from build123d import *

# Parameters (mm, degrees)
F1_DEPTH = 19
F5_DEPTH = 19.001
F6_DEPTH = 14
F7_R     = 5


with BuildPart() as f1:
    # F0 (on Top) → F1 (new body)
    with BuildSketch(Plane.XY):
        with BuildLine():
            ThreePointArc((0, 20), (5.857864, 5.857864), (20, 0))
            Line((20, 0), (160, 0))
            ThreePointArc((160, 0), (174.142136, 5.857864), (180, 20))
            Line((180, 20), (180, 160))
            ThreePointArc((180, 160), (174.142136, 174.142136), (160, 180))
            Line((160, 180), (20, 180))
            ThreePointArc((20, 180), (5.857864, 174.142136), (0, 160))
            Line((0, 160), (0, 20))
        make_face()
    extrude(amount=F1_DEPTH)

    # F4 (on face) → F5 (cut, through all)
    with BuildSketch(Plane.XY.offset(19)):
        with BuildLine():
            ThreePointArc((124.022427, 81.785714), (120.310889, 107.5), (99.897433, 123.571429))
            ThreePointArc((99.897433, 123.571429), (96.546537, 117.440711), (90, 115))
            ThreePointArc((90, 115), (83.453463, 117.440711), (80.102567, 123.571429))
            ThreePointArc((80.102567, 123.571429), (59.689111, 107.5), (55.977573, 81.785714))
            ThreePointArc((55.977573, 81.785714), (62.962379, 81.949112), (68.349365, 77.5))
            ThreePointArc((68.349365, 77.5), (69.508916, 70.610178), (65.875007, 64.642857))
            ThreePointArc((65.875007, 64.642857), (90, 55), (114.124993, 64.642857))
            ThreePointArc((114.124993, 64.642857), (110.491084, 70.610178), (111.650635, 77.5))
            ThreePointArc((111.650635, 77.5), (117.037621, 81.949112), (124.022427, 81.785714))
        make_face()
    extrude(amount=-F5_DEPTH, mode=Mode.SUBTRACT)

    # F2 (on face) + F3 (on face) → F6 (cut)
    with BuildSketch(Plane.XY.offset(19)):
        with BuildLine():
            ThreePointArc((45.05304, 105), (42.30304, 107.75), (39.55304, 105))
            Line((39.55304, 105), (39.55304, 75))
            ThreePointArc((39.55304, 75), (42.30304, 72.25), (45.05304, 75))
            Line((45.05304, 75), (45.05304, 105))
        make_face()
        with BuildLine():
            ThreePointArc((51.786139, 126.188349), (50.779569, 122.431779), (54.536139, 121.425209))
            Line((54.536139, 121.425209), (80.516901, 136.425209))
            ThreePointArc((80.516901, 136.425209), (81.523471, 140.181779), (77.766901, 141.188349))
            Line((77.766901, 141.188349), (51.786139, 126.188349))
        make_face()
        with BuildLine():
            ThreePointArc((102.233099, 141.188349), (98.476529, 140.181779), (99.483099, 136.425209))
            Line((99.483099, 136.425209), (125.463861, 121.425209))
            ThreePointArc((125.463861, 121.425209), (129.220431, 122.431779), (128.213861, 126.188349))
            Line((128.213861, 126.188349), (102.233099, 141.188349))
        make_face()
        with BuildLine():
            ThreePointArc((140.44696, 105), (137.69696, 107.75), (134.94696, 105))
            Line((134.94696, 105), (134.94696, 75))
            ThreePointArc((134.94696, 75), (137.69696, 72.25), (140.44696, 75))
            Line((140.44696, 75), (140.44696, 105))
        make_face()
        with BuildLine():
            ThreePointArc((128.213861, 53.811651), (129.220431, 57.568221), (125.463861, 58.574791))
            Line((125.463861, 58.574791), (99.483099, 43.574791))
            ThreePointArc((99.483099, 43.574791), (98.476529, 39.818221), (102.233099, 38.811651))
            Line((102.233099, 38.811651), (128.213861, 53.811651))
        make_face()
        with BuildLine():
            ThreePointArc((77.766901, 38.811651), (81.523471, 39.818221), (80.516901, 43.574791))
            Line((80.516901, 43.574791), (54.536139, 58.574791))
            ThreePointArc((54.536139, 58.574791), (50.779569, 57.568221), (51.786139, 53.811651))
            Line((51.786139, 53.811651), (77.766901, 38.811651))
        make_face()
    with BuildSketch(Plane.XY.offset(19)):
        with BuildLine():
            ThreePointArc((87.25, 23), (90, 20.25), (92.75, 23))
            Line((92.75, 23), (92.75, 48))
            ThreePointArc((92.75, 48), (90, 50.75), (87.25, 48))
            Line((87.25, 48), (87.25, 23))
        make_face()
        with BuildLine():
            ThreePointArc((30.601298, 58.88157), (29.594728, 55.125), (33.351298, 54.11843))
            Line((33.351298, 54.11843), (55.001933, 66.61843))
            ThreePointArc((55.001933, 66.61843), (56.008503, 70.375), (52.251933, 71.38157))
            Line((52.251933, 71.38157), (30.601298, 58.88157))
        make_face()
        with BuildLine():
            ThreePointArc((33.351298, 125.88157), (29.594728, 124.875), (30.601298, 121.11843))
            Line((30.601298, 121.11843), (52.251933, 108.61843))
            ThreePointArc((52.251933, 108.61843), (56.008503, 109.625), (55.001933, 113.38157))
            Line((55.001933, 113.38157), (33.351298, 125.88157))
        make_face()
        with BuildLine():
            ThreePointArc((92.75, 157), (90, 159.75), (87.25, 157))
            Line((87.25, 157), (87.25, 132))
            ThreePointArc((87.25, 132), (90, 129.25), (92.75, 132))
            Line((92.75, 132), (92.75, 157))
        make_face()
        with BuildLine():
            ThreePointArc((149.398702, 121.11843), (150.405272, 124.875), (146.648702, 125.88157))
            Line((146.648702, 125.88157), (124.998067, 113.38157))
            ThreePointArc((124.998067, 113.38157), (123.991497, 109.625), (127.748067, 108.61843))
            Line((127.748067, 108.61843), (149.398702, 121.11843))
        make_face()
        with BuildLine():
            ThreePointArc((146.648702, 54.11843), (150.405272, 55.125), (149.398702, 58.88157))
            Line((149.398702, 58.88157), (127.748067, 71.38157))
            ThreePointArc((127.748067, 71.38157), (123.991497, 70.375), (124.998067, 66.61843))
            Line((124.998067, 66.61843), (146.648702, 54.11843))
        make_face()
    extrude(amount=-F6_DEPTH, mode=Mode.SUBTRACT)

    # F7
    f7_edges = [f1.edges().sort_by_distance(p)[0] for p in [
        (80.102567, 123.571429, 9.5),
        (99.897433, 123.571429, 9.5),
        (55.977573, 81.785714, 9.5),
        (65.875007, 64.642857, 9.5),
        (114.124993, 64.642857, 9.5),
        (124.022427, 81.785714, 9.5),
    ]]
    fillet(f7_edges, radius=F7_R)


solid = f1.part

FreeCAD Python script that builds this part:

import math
import FreeCAD as App
import Part
import Sketcher
Q = App.Units.Quantity


def edges_at(feature, points):
    """Names of the edges that pass closest to the given points."""
    edges = feature.Shape.Edges
    near = lambda p: min(range(len(edges)), key=lambda i: edges[i].distToShape(Part.Vertex(*p))[0])
    return sorted({f"Edge{near(p) + 1}" for p in points})

doc = App.newDocument("Part")
params = doc.addObject("Spreadsheet::Sheet", "Params")
for row, (alias, value) in enumerate([
    ("sketch1_radius", "19.999999 mm"),
    ("sketch1_width", "140 mm"),
    ("pad1_length", "19 mm"),
    ("sketch2_radius", "35.000002 mm"),
    ("sketch2_radius2", "10 mm"),
    ("sketch2_radius3", "34.999999 mm"),
    ("sketch2_height", "5 mm"),
    ("sketch3_height", "30 mm"),
    ("sketch3_height2", "25 mm"),
    ("sketch3_radius", "2.75 mm"),
    ("sketch3_length", "30 mm"),
    ("sketch3_length2", "25 mm"),
    ("pocket2_length", "14 mm"),
    ("fillet_radius", "5 mm"),
], start=1):
    params.set(f"A{row}", alias)
    params.set(f"B{row}", "=" + value)
    params.setAlias(f"B{row}", alias)

body = doc.addObject("PartDesign::Body", "Body")

sketch1 = doc.addObject("Sketcher::SketchObject", "Sketch")
body.addObject(sketch1)
sketch1.AttachmentSupport = (doc.XY_Plane, [""])
sketch1.MapMode = "FlatFace"
sketch1.addGeometry(Part.ArcOfCircle(Part.Circle(App.Vector(20, 20, 0), App.Vector(0, 0, 1), 20), math.radians(180), math.radians(270)), False)
sketch1.addGeometry(Part.LineSegment(App.Vector(20, 0, 0), App.Vector(160, 0, 0)), False)
sketch1.addGeometry(Part.ArcOfCircle(Part.Circle(App.Vector(160, 20, 0), App.Vector(0, 0, 1), 20), math.radians(-90), math.radians(0)), False)
sketch1.addGeometry(Part.LineSegment(App.Vector(180, 20, 0), App.Vector(180, 160, 0)), False)
sketch1.addGeometry(Part.ArcOfCircle(Part.Circle(App.Vector(160, 160, 0), App.Vector(0, 0, 1), 20), math.radians(0), math.radians(90)), False)
sketch1.addGeometry(Part.LineSegment(App.Vector(160, 180, 0), App.Vector(20, 180, 0)), False)
sketch1.addGeometry(Part.ArcOfCircle(Part.Circle(App.Vector(20, 160, 0), App.Vector(0, 0, 1), 20), math.radians(90), math.radians(180)), False)
sketch1.addGeometry(Part.LineSegment(App.Vector(0, 160, 0), App.Vector(0, 20, 0)), False)
sketch1.addConstraint(Sketcher.Constraint("Tangent", 0, 2, 1, 1))
sketch1.addConstraint(Sketcher.Constraint("Tangent", 1, 2, 2, 1))
sketch1.addConstraint(Sketcher.Constraint("Tangent", 2, 2, 3, 1))
sketch1.addConstraint(Sketcher.Constraint("Tangent", 3, 2, 4, 1))
sketch1.addConstraint(Sketcher.Constraint("Tangent", 4, 2, 5, 1))
sketch1.addConstraint(Sketcher.Constraint("Tangent", 5, 2, 6, 1))
sketch1.addConstraint(Sketcher.Constraint("Tangent", 6, 2, 7, 1))
sketch1.addConstraint(Sketcher.Constraint("Tangent", 7, 2, 0, 1))
sketch1.addConstraint(Sketcher.Constraint("Horizontal", 1))
sketch1.addConstraint(Sketcher.Constraint("Vertical", 3))
sketch1.addConstraint(Sketcher.Constraint("Horizontal", 5))
sketch1.addConstraint(Sketcher.Constraint("Vertical", 7))
sketch1.addConstraint(Sketcher.Constraint("Equal", 0, 2))
sketch1.addConstraint(Sketcher.Constraint("Equal", 2, 4))
sketch1.addConstraint(Sketcher.Constraint("Equal", 4, 6))
sketch1.addConstraint(Sketcher.Constraint("PointOnObject", 0, 2, -1))
sketch1.addConstraint(Sketcher.Constraint("PointOnObject", 6, 2, -2))
sketch1.addConstraint(Sketcher.Constraint("Equal", 5, 3))
sketch1.addConstraint(Sketcher.Constraint("Radius", 0, Q("19.999999 mm")))
sketch1.addConstraint(Sketcher.Constraint("DistanceX", 1, 1, 1, 2, Q("140 mm")))
sketch1.setExpression("Constraints[18]", "Params.sketch1_radius")
sketch1.setExpression("Constraints[19]", "Params.sketch1_width")
pad1 = doc.addObject("PartDesign::Pad", "Pad")
body.addObject(pad1)
pad1.Profile = sketch1
pad1.setExpression("Length", "Params.pad1_length")

sketch2 = doc.addObject("Sketcher::SketchObject", "Sketch001")
body.addObject(sketch2)
sketch2.AttachmentSupport = (doc.XY_Plane, [""])
sketch2.MapMode = "FlatFace"
sketch2.AttachmentOffset = App.Placement(App.Vector(0, 0, 19), App.Rotation())
sketch2.addGeometry(Part.ArcOfCircle(Part.Circle(App.Vector(90, 90, 0), App.Vector(0, 0, 1), 35), math.radians(-14), math.radians(74)), False)
sketch2.addGeometry(Part.ArcOfCircle(Part.Circle(App.Vector(90, 125, 0), App.Vector(0, 0, 1), 10), math.radians(-90), math.radians(-8)), False)
sketch2.addGeometry(Part.ArcOfCircle(Part.Circle(App.Vector(90, 125, 0), App.Vector(0, 0, 1), 10), math.radians(-172), math.radians(-90)), False)
sketch2.addGeometry(Part.ArcOfCircle(Part.Circle(App.Vector(90, 90, 0), App.Vector(0, 0, 1), 35), math.radians(106), math.radians(194)), False)
sketch2.addGeometry(Part.ArcOfCircle(Part.Circle(App.Vector(60, 73, 0), App.Vector(0, 0, 1), 10), math.radians(30), math.radians(112)), False)
sketch2.addGeometry(Part.ArcOfCircle(Part.Circle(App.Vector(60, 72, 0), App.Vector(0, 0, 1), 10), math.radians(-52), math.radians(30)), False)
sketch2.addGeometry(Part.ArcOfCircle(Part.Circle(App.Vector(90, 90, 0), App.Vector(0, 0, 1), 35), math.radians(-134), math.radians(-46)), False)
sketch2.addGeometry(Part.ArcOfCircle(Part.Circle(App.Vector(120, 72, 0), App.Vector(0, 0, 1), 10), math.radians(150), math.radians(232)), False)
sketch2.addGeometry(Part.ArcOfCircle(Part.Circle(App.Vector(120, 73, 0), App.Vector(0, 0, 1), 10), math.radians(68), math.radians(150)), False)
sketch2.addConstraint(Sketcher.Constraint("Coincident", 0, 2, 1, 2))
sketch2.addConstraint(Sketcher.Constraint("Tangent", 1, 1, 2, 2))
sketch2.addConstraint(Sketcher.Constraint("Coincident", 2, 1, 3, 1))
sketch2.addConstraint(Sketcher.Constraint("Coincident", 3, 2, 4, 2))
sketch2.addConstraint(Sketcher.Constraint("Tangent", 4, 1, 5, 2))
sketch2.addConstraint(Sketcher.Constraint("Coincident", 5, 1, 6, 1))
sketch2.addConstraint(Sketcher.Constraint("Coincident", 6, 2, 7, 2))
sketch2.addConstraint(Sketcher.Constraint("Tangent", 7, 1, 8, 2))
sketch2.addConstraint(Sketcher.Constraint("Coincident", 8, 1, 0, 1))
sketch2.addConstraint(Sketcher.Constraint("Coincident", 3, 3, 0, 3))
sketch2.addConstraint(Sketcher.Constraint("Coincident", 6, 3, 0, 3))
sketch2.addConstraint(Sketcher.Constraint("Equal", 1, 2))
sketch2.addConstraint(Sketcher.Constraint("Equal", 0, 3))
sketch2.addConstraint(Sketcher.Constraint("Equal", 2, 4))
sketch2.addConstraint(Sketcher.Constraint("Equal", 4, 5))
sketch2.addConstraint(Sketcher.Constraint("Equal", 5, 7))
sketch2.addConstraint(Sketcher.Constraint("Equal", 7, 8))
sketch2.addConstraint(Sketcher.Constraint("Horizontal", 5, 3, 7, 3))
sketch2.addConstraint(Sketcher.Constraint("Horizontal", 0, 2, 2, 1))
sketch2.addConstraint(Sketcher.Constraint("Horizontal", 5, 1, 6, 2))
sketch2.addConstraint(Sketcher.Constraint("Horizontal", 4, 1, 7, 1))
sketch2.addConstraint(Sketcher.Constraint("Vertical", 6, 3, 1, 1))
sketch2.addConstraint(Sketcher.Constraint("Radius", 0, Q("35.000002 mm")))
sketch2.addConstraint(Sketcher.Constraint("Radius", 1, Q("10 mm")))
sketch2.addConstraint(Sketcher.Constraint("Radius", 6, Q("34.999999 mm")))
sketch2.addConstraint(Sketcher.Constraint("DistanceX", -1, 1, 0, 3, Q("89.999998 mm")))
sketch2.addConstraint(Sketcher.Constraint("DistanceY", -1, 1, 0, 3, Q("89.999999 mm")))
sketch2.addConstraint(Sketcher.Constraint("DistanceY", -1, 1, 1, 3, Q("125 mm")))
sketch2.addConstraint(Sketcher.Constraint("DistanceY", 4, 3, 4, 1, Q("5 mm")))
sketch2.addConstraint(Sketcher.Constraint("DistanceY", -1, 1, 4, 3, Q("72.5 mm")))
sketch2.addConstraint(Sketcher.Constraint("DistanceX", -1, 1, 4, 3, Q("59.689111 mm")))
sketch2.setExpression("Constraints[22]", "Params.sketch2_radius")
sketch2.setExpression("Constraints[23]", "Params.sketch2_radius2")
sketch2.setExpression("Constraints[24]", "Params.sketch2_radius3")
sketch2.setExpression("Constraints[28]", "Params.sketch2_height")
pocket1 = doc.addObject("PartDesign::Pocket", "Pocket")
body.addObject(pocket1)
pocket1.Profile = sketch2
pocket1.Type = "ThroughAll"

sketch3 = doc.addObject("Sketcher::SketchObject", "Sketch002")
body.addObject(sketch3)
sketch3.AttachmentSupport = (doc.XY_Plane, [""])
sketch3.MapMode = "FlatFace"
sketch3.AttachmentOffset = App.Placement(App.Vector(0, 0, 19), App.Rotation())
sketch3.addGeometry(Part.ArcOfCircle(Part.Circle(App.Vector(42.3, 105, 0), App.Vector(0, 0, 1), 2.8), math.radians(0), math.radians(180)), False)
sketch3.addGeometry(Part.LineSegment(App.Vector(39.6, 105, 0), App.Vector(39.6, 75, 0)), False)
sketch3.addGeometry(Part.ArcOfCircle(Part.Circle(App.Vector(42.3, 75, 0), App.Vector(0, 0, 1), 2.8), math.radians(180), math.radians(360)), False)
sketch3.addGeometry(Part.LineSegment(App.Vector(45.1, 75, 0), App.Vector(45.1, 105, 0)), False)
sketch3.addGeometry(Part.ArcOfCircle(Part.Circle(App.Vector(53.2, 123.8, 0), App.Vector(0, 0, 1), 2.8), math.radians(120), math.radians(300)), False)
sketch3.addGeometry(Part.LineSegment(App.Vector(54.5, 121.4, 0), App.Vector(80.5, 136.4, 0)), False)
sketch3.addGeometry(Part.ArcOfCircle(Part.Circle(App.Vector(79.1, 138.8, 0), App.Vector(0, 0, 1), 2.8), math.radians(-60), math.radians(120)), False)
sketch3.addGeometry(Part.LineSegment(App.Vector(77.8, 141.2, 0), App.Vector(51.8, 126.2, 0)), False)
sketch3.addGeometry(Part.ArcOfCircle(Part.Circle(App.Vector(100.9, 138.8, 0), App.Vector(0, 0, 1), 2.8), math.radians(60), math.radians(240)), False)
sketch3.addGeometry(Part.LineSegment(App.Vector(99.5, 136.4, 0), App.Vector(125.5, 121.4, 0)), False)
sketch3.addGeometry(Part.ArcOfCircle(Part.Circle(App.Vector(126.8, 123.8, 0), App.Vector(0, 0, 1), 2.8), math.radians(-120), math.radians(60)), False)
sketch3.addGeometry(Part.LineSegment(App.Vector(128.2, 126.2, 0), App.Vector(102.2, 141.2, 0)), False)
sketch3.addGeometry(Part.ArcOfCircle(Part.Circle(App.Vector(137.7, 105, 0), App.Vector(0, 0, 1), 2.8), math.radians(0), math.radians(180)), False)
sketch3.addGeometry(Part.LineSegment(App.Vector(134.9, 105, 0), App.Vector(134.9, 75, 0)), False)
sketch3.addGeometry(Part.ArcOfCircle(Part.Circle(App.Vector(137.7, 75, 0), App.Vector(0, 0, 1), 2.8), math.radians(180), math.radians(360)), False)
sketch3.addGeometry(Part.LineSegment(App.Vector(140.4, 75, 0), App.Vector(140.4, 105, 0)), False)
sketch3.addGeometry(Part.ArcOfCircle(Part.Circle(App.Vector(126.8, 56.2, 0), App.Vector(0, 0, 1), 2.8), math.radians(-60), math.radians(120)), False)
sketch3.addGeometry(Part.LineSegment(App.Vector(125.5, 58.6, 0), App.Vector(99.5, 43.6, 0)), False)
sketch3.addGeometry(Part.ArcOfCircle(Part.Circle(App.Vector(100.9, 41.2, 0), App.Vector(0, 0, 1), 2.8), math.radians(120), math.radians(300)), False)
sketch3.addGeometry(Part.LineSegment(App.Vector(102.2, 38.8, 0), App.Vector(128.2, 53.8, 0)), False)
sketch3.addGeometry(Part.ArcOfCircle(Part.Circle(App.Vector(79.1, 41.2, 0), App.Vector(0, 0, 1), 2.8), math.radians(-120), math.radians(60)), False)
sketch3.addGeometry(Part.LineSegment(App.Vector(80.5, 43.6, 0), App.Vector(54.5, 58.6, 0)), False)
sketch3.addGeometry(Part.ArcOfCircle(Part.Circle(App.Vector(53.2, 56.2, 0), App.Vector(0, 0, 1), 2.8), math.radians(60), math.radians(240)), False)
sketch3.addGeometry(Part.LineSegment(App.Vector(51.8, 53.8, 0), App.Vector(77.8, 38.8, 0)), False)
sketch3.addGeometry(Part.ArcOfCircle(Part.Circle(App.Vector(90, 23, 0), App.Vector(0, 0, 1), 2.8), math.radians(180), math.radians(360)), False)
sketch3.addGeometry(Part.LineSegment(App.Vector(92.8, 23, 0), App.Vector(92.8, 48, 0)), False)
sketch3.addGeometry(Part.ArcOfCircle(Part.Circle(App.Vector(90, 48, 0), App.Vector(0, 0, 1), 2.8), math.radians(0), math.radians(180)), False)
sketch3.addGeometry(Part.LineSegment(App.Vector(87.2, 48, 0), App.Vector(87.2, 23, 0)), False)
sketch3.addGeometry(Part.ArcOfCircle(Part.Circle(App.Vector(32, 56.5, 0), App.Vector(0, 0, 1), 2.8), math.radians(120), math.radians(300)), False)
sketch3.addGeometry(Part.LineSegment(App.Vector(33.4, 54.1, 0), App.Vector(55, 66.6, 0)), False)
sketch3.addGeometry(Part.ArcOfCircle(Part.Circle(App.Vector(53.6, 69, 0), App.Vector(0, 0, 1), 2.8), math.radians(-60), math.radians(120)), False)
sketch3.addGeometry(Part.LineSegment(App.Vector(52.3, 71.4, 0), App.Vector(30.6, 58.9, 0)), False)
sketch3.addGeometry(Part.ArcOfCircle(Part.Circle(App.Vector(32, 123.5, 0), App.Vector(0, 0, 1), 2.8), math.radians(60), math.radians(240)), False)
sketch3.addGeometry(Part.LineSegment(App.Vector(30.6, 121.1, 0), App.Vector(52.3, 108.6, 0)), False)
sketch3.addGeometry(Part.ArcOfCircle(Part.Circle(App.Vector(53.6, 111, 0), App.Vector(0, 0, 1), 2.8), math.radians(-120), math.radians(60)), False)
sketch3.addGeometry(Part.LineSegment(App.Vector(55, 113.4, 0), App.Vector(33.4, 125.9, 0)), False)
sketch3.addGeometry(Part.ArcOfCircle(Part.Circle(App.Vector(90, 157, 0), App.Vector(0, 0, 1), 2.8), math.radians(0), math.radians(180)), False)
sketch3.addGeometry(Part.LineSegment(App.Vector(87.2, 157, 0), App.Vector(87.2, 132, 0)), False)
sketch3.addGeometry(Part.ArcOfCircle(Part.Circle(App.Vector(90, 132, 0), App.Vector(0, 0, 1), 2.8), math.radians(180), math.radians(360)), False)
sketch3.addGeometry(Part.LineSegment(App.Vector(92.8, 132, 0), App.Vector(92.8, 157, 0)), False)
sketch3.addGeometry(Part.ArcOfCircle(Part.Circle(App.Vector(148, 123.5, 0), App.Vector(0, 0, 1), 2.8), math.radians(-60), math.radians(120)), False)
sketch3.addGeometry(Part.LineSegment(App.Vector(146.6, 125.9, 0), App.Vector(125, 113.4, 0)), False)
sketch3.addGeometry(Part.ArcOfCircle(Part.Circle(App.Vector(126.4, 111, 0), App.Vector(0, 0, 1), 2.8), math.radians(120), math.radians(300)), False)
sketch3.addGeometry(Part.LineSegment(App.Vector(127.7, 108.6, 0), App.Vector(149.4, 121.1, 0)), False)
sketch3.addGeometry(Part.ArcOfCircle(Part.Circle(App.Vector(148, 56.5, 0), App.Vector(0, 0, 1), 2.8), math.radians(-120), math.radians(60)), False)
sketch3.addGeometry(Part.LineSegment(App.Vector(149.4, 58.9, 0), App.Vector(127.7, 71.4, 0)), False)
sketch3.addGeometry(Part.ArcOfCircle(Part.Circle(App.Vector(126.4, 69, 0), App.Vector(0, 0, 1), 2.8), math.radians(60), math.radians(240)), False)
sketch3.addGeometry(Part.LineSegment(App.Vector(125, 66.6, 0), App.Vector(146.6, 54.1, 0)), False)
sketch3.addConstraint(Sketcher.Constraint("Tangent", 0, 2, 1, 1))
sketch3.addConstraint(Sketcher.Constraint("Tangent", 1, 2, 2, 1))
sketch3.addConstraint(Sketcher.Constraint("Tangent", 2, 2, 3, 1))
sketch3.addConstraint(Sketcher.Constraint("Tangent", 3, 2, 0, 1))
sketch3.addConstraint(Sketcher.Constraint("Tangent", 4, 2, 5, 1))
sketch3.addConstraint(Sketcher.Constraint("Tangent", 5, 2, 6, 1))
sketch3.addConstraint(Sketcher.Constraint("Tangent", 6, 2, 7, 1))
sketch3.addConstraint(Sketcher.Constraint("Tangent", 7, 2, 4, 1))
sketch3.addConstraint(Sketcher.Constraint("Tangent", 8, 2, 9, 1))
sketch3.addConstraint(Sketcher.Constraint("Tangent", 9, 2, 10, 1))
sketch3.addConstraint(Sketcher.Constraint("Tangent", 10, 2, 11, 1))
sketch3.addConstraint(Sketcher.Constraint("Tangent", 11, 2, 8, 1))
sketch3.addConstraint(Sketcher.Constraint("Tangent", 12, 2, 13, 1))
sketch3.addConstraint(Sketcher.Constraint("Tangent", 13, 2, 14, 1))
sketch3.addConstraint(Sketcher.Constraint("Tangent", 14, 2, 15, 1))
sketch3.addConstraint(Sketcher.Constraint("Tangent", 15, 2, 12, 1))
sketch3.addConstraint(Sketcher.Constraint("Tangent", 16, 2, 17, 1))
sketch3.addConstraint(Sketcher.Constraint("Tangent", 17, 2, 18, 1))
sketch3.addConstraint(Sketcher.Constraint("Tangent", 18, 2, 19, 1))
sketch3.addConstraint(Sketcher.Constraint("Tangent", 19, 2, 16, 1))
sketch3.addConstraint(Sketcher.Constraint("Tangent", 20, 2, 21, 1))
sketch3.addConstraint(Sketcher.Constraint("Tangent", 21, 2, 22, 1))
sketch3.addConstraint(Sketcher.Constraint("Tangent", 22, 2, 23, 1))
sketch3.addConstraint(Sketcher.Constraint("Tangent", 23, 2, 20, 1))
sketch3.addConstraint(Sketcher.Constraint("Tangent", 24, 2, 25, 1))
sketch3.addConstraint(Sketcher.Constraint("Tangent", 25, 2, 26, 1))
sketch3.addConstraint(Sketcher.Constraint("Tangent", 26, 2, 27, 1))
sketch3.addConstraint(Sketcher.Constraint("Tangent", 27, 2, 24, 1))
sketch3.addConstraint(Sketcher.Constraint("Tangent", 28, 2, 29, 1))
sketch3.addConstraint(Sketcher.Constraint("Tangent", 29, 2, 30, 1))
sketch3.addConstraint(Sketcher.Constraint("Tangent", 30, 2, 31, 1))
sketch3.addConstraint(Sketcher.Constraint("Tangent", 31, 2, 28, 1))
sketch3.addConstraint(Sketcher.Constraint("Tangent", 32, 2, 33, 1))
sketch3.addConstraint(Sketcher.Constraint("Tangent", 33, 2, 34, 1))
sketch3.addConstraint(Sketcher.Constraint("Tangent", 34, 2, 35, 1))
sketch3.addConstraint(Sketcher.Constraint("Tangent", 35, 2, 32, 1))
sketch3.addConstraint(Sketcher.Constraint("Tangent", 36, 2, 37, 1))
sketch3.addConstraint(Sketcher.Constraint("Tangent", 37, 2, 38, 1))
sketch3.addConstraint(Sketcher.Constraint("Tangent", 38, 2, 39, 1))
sketch3.addConstraint(Sketcher.Constraint("Tangent", 39, 2, 36, 1))
sketch3.addConstraint(Sketcher.Constraint("Tangent", 40, 2, 41, 1))
sketch3.addConstraint(Sketcher.Constraint("Tangent", 41, 2, 42, 1))
sketch3.addConstraint(Sketcher.Constraint("Tangent", 42, 2, 43, 1))
sketch3.addConstraint(Sketcher.Constraint("Tangent", 43, 2, 40, 1))
sketch3.addConstraint(Sketcher.Constraint("Tangent", 44, 2, 45, 1))
sketch3.addConstraint(Sketcher.Constraint("Tangent", 45, 2, 46, 1))
sketch3.addConstraint(Sketcher.Constraint("Tangent", 46, 2, 47, 1))
sketch3.addConstraint(Sketcher.Constraint("Tangent", 47, 2, 44, 1))
sketch3.addConstraint(Sketcher.Constraint("Vertical", 1))
sketch3.addConstraint(Sketcher.Constraint("Vertical", 3))
sketch3.addConstraint(Sketcher.Constraint("Vertical", 13))
sketch3.addConstraint(Sketcher.Constraint("Vertical", 15))
sketch3.addConstraint(Sketcher.Constraint("Vertical", 25))
sketch3.addConstraint(Sketcher.Constraint("Vertical", 27))
sketch3.addConstraint(Sketcher.Constraint("Vertical", 37))
sketch3.addConstraint(Sketcher.Constraint("Vertical", 39))
sketch3.addConstraint(Sketcher.Constraint("Equal", 2, 4))
sketch3.addConstraint(Sketcher.Constraint("Equal", 4, 6))
sketch3.addConstraint(Sketcher.Constraint("Equal", 6, 8))
sketch3.addConstraint(Sketcher.Constraint("Equal", 8, 10))
sketch3.addConstraint(Sketcher.Constraint("Equal", 10, 12))
sketch3.addConstraint(Sketcher.Constraint("Equal", 14, 16))
sketch3.addConstraint(Sketcher.Constraint("Equal", 16, 18))
sketch3.addConstraint(Sketcher.Constraint("Equal", 18, 20))
sketch3.addConstraint(Sketcher.Constraint("Equal", 20, 22))
sketch3.addConstraint(Sketcher.Constraint("Equal", 22, 24))
sketch3.addConstraint(Sketcher.Constraint("Equal", 26, 28))
sketch3.addConstraint(Sketcher.Constraint("Equal", 28, 30))
sketch3.addConstraint(Sketcher.Constraint("Equal", 30, 32))
sketch3.addConstraint(Sketcher.Constraint("Equal", 32, 34))
sketch3.addConstraint(Sketcher.Constraint("Equal", 34, 36))
sketch3.addConstraint(Sketcher.Constraint("Equal", 38, 40))
sketch3.addConstraint(Sketcher.Constraint("Equal", 40, 42))
sketch3.addConstraint(Sketcher.Constraint("Equal", 42, 44))
sketch3.addConstraint(Sketcher.Constraint("Equal", 44, 46))
sketch3.addConstraint(Sketcher.Constraint("Parallel", 7, 17))
sketch3.addConstraint(Sketcher.Constraint("Parallel", 11, 21))
sketch3.addConstraint(Sketcher.Constraint("Parallel", 19, 29))
sketch3.addConstraint(Sketcher.Constraint("Parallel", 23, 33))
sketch3.addConstraint(Sketcher.Constraint("Parallel", 31, 41))
sketch3.addConstraint(Sketcher.Constraint("Parallel", 35, 45))
sketch3.addConstraint(Sketcher.Constraint("Horizontal", 6, 3, 8, 3))
sketch3.addConstraint(Sketcher.Constraint("Horizontal", 4, 3, 10, 3))
sketch3.addConstraint(Sketcher.Constraint("Horizontal", 0, 3, 12, 3))
sketch3.addConstraint(Sketcher.Constraint("Horizontal", 2, 3, 14, 3))
sketch3.addConstraint(Sketcher.Constraint("Horizontal", 18, 3, 20, 3))
sketch3.addConstraint(Sketcher.Constraint("Horizontal", 16, 3, 22, 3))
sketch3.addConstraint(Sketcher.Constraint("Horizontal", 32, 3, 40, 3))
sketch3.addConstraint(Sketcher.Constraint("Horizontal", 34, 3, 42, 3))
sketch3.addConstraint(Sketcher.Constraint("Horizontal", 28, 3, 44, 3))
sketch3.addConstraint(Sketcher.Constraint("Horizontal", 30, 3, 46, 3))
sketch3.addConstraint(Sketcher.Constraint("Horizontal", 5, 2, 8, 2))
sketch3.addConstraint(Sketcher.Constraint("Vertical", 10, 3, 16, 3))
sketch3.addConstraint(Sketcher.Constraint("Vertical", 8, 3, 18, 3))
sketch3.addConstraint(Sketcher.Constraint("Vertical", 6, 3, 20, 3))
sketch3.addConstraint(Sketcher.Constraint("Vertical", 28, 3, 32, 3))
sketch3.addConstraint(Sketcher.Constraint("Vertical", 30, 3, 34, 3))
sketch3.addConstraint(Sketcher.Constraint("Vertical", 26, 3, 36, 3))
sketch3.addConstraint(Sketcher.Constraint("Vertical", 40, 3, 44, 3))
sketch3.addConstraint(Sketcher.Constraint("Equal", 27, 37))
sketch3.addConstraint(Sketcher.Constraint("DistanceY", 1, 2, 1, 1, Q("30 mm")))
sketch3.addConstraint(Sketcher.Constraint("DistanceY", 25, 1, 25, 2, Q("25 mm")))
sketch3.addConstraint(Sketcher.Constraint("Angle", 5, Q("30 deg")))
sketch3.addConstraint(Sketcher.Constraint("Radius", 0, Q("2.75 mm")))
sketch3.addConstraint(Sketcher.Constraint("Distance", 5, Q("30 mm")))
sketch3.addConstraint(Sketcher.Constraint("Distance", 29, Q("25 mm")))
sketch3.addConstraint(Sketcher.Constraint("DistanceY", -1, 1, 0, 3, Q("105 mm")))
sketch3.addConstraint(Sketcher.Constraint("DistanceX", -1, 1, 24, 3, Q("90 mm")))
sketch3.addConstraint(Sketcher.Constraint("DistanceY", -1, 1, 24, 3, Q("23 mm")))
sketch3.addConstraint(Sketcher.Constraint("DistanceY", -1, 1, 30, 3, Q("69 mm")))
sketch3.addConstraint(Sketcher.Constraint("DistanceY", -1, 1, 34, 3, Q("111 mm")))
sketch3.addConstraint(Sketcher.Constraint("DistanceY", -1, 1, 36, 3, Q("157 mm")))
sketch3.addConstraint(Sketcher.Constraint("DistanceX", -1, 1, 6, 3, Q("79.141901 mm")))
sketch3.addConstraint(Sketcher.Constraint("DistanceX", -1, 1, 8, 3, Q("100.858099 mm")))
sketch3.addConstraint(Sketcher.Constraint("DistanceX", -1, 1, 28, 3, Q("31.976298 mm")))
sketch3.addConstraint(Sketcher.Constraint("DistanceX", -1, 1, 40, 3, Q("148.023702 mm")))
sketch3.addConstraint(Sketcher.Constraint("DistanceX", -1, 1, 0, 3, Q("42.30304 mm")))
sketch3.addConstraint(Sketcher.Constraint("DistanceY", -1, 1, 4, 3, Q("123.806779 mm")))
sketch3.addConstraint(Sketcher.Constraint("DistanceX", -1, 1, 12, 3, Q("137.69696 mm")))
sketch3.addConstraint(Sketcher.Constraint("DistanceY", -1, 1, 16, 3, Q("56.193221 mm")))
sketch3.setExpression("Constraints[100]", "Params.sketch3_height")
sketch3.setExpression("Constraints[101]", "Params.sketch3_height2")
sketch3.setExpression("Constraints[103]", "Params.sketch3_radius")
sketch3.setExpression("Constraints[104]", "Params.sketch3_length")
sketch3.setExpression("Constraints[105]", "Params.sketch3_length2")
pocket2 = doc.addObject("PartDesign::Pocket", "Pocket001")
body.addObject(pocket2)
pocket2.Profile = sketch3
pocket2.setExpression("Length", "Params.pocket2_length")
doc.recompute()

fillet = doc.addObject("PartDesign::Fillet", "Fillet")
body.addObject(fillet)
fillet.Base = (pocket2, edges_at(pocket2, [
    (80.103, 123.571, 9.5),
    (99.897, 123.571, 9.5),
    (55.978, 81.786, 9.5),
    (65.875, 64.643, 9.5),
    (114.125, 64.643, 9.5),
    (124.022, 81.786, 9.5),
]))
fillet.setExpression("Radius", "Params.fillet_radius")

doc.recompute()
